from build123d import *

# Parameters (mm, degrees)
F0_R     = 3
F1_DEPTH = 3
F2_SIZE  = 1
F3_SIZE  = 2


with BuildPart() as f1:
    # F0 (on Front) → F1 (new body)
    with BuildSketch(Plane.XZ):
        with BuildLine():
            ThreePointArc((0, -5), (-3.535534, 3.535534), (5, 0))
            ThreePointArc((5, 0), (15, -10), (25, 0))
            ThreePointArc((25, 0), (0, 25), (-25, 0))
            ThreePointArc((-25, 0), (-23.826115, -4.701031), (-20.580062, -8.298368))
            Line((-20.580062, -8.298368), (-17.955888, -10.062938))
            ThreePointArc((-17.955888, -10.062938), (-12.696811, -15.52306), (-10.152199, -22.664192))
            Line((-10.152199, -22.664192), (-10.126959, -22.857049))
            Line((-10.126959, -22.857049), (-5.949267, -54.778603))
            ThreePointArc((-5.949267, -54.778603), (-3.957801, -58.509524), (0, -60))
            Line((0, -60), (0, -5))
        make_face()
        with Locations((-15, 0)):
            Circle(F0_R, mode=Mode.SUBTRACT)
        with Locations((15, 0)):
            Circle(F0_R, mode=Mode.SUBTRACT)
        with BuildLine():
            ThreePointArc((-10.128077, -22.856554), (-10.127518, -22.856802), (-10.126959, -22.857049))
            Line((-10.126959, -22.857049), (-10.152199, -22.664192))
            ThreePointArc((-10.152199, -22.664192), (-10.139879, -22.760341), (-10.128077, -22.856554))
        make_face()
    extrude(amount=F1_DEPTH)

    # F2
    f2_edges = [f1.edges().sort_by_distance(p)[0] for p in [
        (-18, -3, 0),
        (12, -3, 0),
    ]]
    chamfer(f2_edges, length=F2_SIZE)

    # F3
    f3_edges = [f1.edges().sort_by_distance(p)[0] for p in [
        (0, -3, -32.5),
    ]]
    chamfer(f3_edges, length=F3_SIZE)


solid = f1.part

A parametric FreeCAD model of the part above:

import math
import FreeCAD as App
import Part
import Sketcher
Q = App.Units.Quantity


def edges_at(feature, points):
    """Names of the edges that pass closest to the given points."""
    edges = feature.Shape.Edges
    near = lambda p: min(range(len(edges)), key=lambda i: edges[i].distToShape(Part.Vertex(*p))[0])
    return sorted({f"Edge{near(p) + 1}" for p in points})

doc = App.newDocument("Part")
params = doc.addObject("Spreadsheet::Sheet", "Params")
for row, (alias, value) in enumerate([
    ("sketch1_diameter", "6 mm"),
    ("sketch1_diameter2", "6 mm"),
    ("sketch1_radius", "5 mm"),
    ("sketch1_radius2", "10 mm"),
    ("sketch1_radius3", "10.000001 mm"),
    ("pad1_length", "3 mm"),
    ("chamfer_size", "1 mm"),
    ("chamfer2_size", "2 mm"),
], start=1):
    params.set(f"A{row}", alias)
    params.set(f"B{row}", "=" + value)
    params.setAlias(f"B{row}", alias)

body = doc.addObject("PartDesign::Body", "Body")

# Sketch on XZ plane
sketch1 = body.newObject("Sketcher::SketchObject", "Sketch")
sketch1.AttachmentSupport = (doc.getObject("XZ_Plane"), [""])
sketch1.MapMode = "FlatFace"
sketch1.addGeometry([
    Part.ArcOfCircle(Part.Circle(App.Vector(0, 0, 0), App.Vector(0, 0, 1), 5), math.radians(-0.000001), math.radians(270.000001)),  # 0
    Part.ArcOfCircle(Part.Circle(App.Vector(15, 0, 0), App.Vector(0, 0, 1), 10), math.radians(180), math.radians(360)),  # 1
    Part.ArcOfCircle(Part.Circle(App.Vector(0, 0, 0), App.Vector(0, 0, 1), 25), math.radians(0), math.radians(180)),  # 2
    Part.ArcOfCircle(Part.Circle(App.Vector(-14.999999, 0, 0), App.Vector(0, 0, 1), 10.000001), math.radians(-179.999997), math.radians(-123.918029)),  # 3
    Part.LineSegment(App.Vector(-20.580062, -8.298368, 0), App.Vector(-17.955888, -10.062938, 0)),  # 4
    Part.ArcOfCircle(Part.Circle(App.Vector(-28.000005, -25.000003, 0), App.Vector(0, 0, 1), 18.000005), math.radians(7.456141), math.radians(56.081966)),  # 5
    Part.ArcOfCircle(Part.Circle(App.Vector(-28.002739, -25.000325, 0), App.Vector(0, 0, 1), 18.002758), math.radians(6.839018), math.radians(7.456029)),  # 6
    Part.ArcOfCircle(Part.Circle(App.Vector(-9.962044, -22.483064, 0), App.Vector(0, 0, 1), 0.408731), math.radians(-113.967301), math.radians(-113.795906)),  # 7
    Part.LineSegment(App.Vector(-10.126959, -22.857049, 0), App.Vector(-5.949267, -54.778603, 0)),  # 8
    Part.ArcOfCircle(Part.Circle(App.Vector(0.000001, -53.999999, 0), App.Vector(0, 0, 1), 6.000001), math.radians(-172.543852), math.radians(-90.00001)),  # 9
    Part.LineSegment(App.Vector(0, -60, 0), App.Vector(0, -5, 0)),  # 10
    Part.Circle(App.Vector(-15, 0, 0), App.Vector(0, 0, 1), 3),  # 11
    Part.Circle(App.Vector(15, 0, 0), App.Vector(0, 0, 1), 3),  # 12
], False)
sketch1.addConstraint([
    Sketcher.Constraint("Coincident", 0, 1, 1, 1),
    Sketcher.Constraint("Coincident", 1, 2, 2, 1),
    Sketcher.Constraint("Coincident", 2, 2, 3, 1),
    Sketcher.Constraint("Coincident", 3, 2, 4, 1),
    Sketcher.Constraint("Coincident", 4, 2, 5, 2),
    Sketcher.Constraint("Coincident", 5, 1, 6, 2),
    Sketcher.Constraint("Coincident", 6, 1, 7, 1),
    Sketcher.Constraint("Coincident", 7, 2, 8, 1),
    Sketcher.Constraint("Coincident", 8, 2, 9, 1),
    Sketcher.Constraint("Coincident", 9, 2, 10, 1),
    Sketcher.Constraint("Coincident", 10, 2, 0, 2),
    Sketcher.Constraint("Vertical", 10),
    Sketcher.Constraint("Coincident", 0, 3, -1, 1),
    Sketcher.Constraint("Coincident", 2, 3, -1, 1),
    Sketcher.Constraint("Coincident", 11, 3, 3, 3),
    Sketcher.Constraint("Coincident", 12, 3, 1, 3),
    Sketcher.Constraint("PointOnObject", 1, 3, -1),
    Sketcher.Constraint("PointOnObject", 3, 3, -1),
    Sketcher.Constraint("PointOnObject", 9, 3, -2),
    Sketcher.Constraint("PointOnObject", 0, 1, -1),
    Sketcher.Constraint("PointOnObject", 1, 2, -1),
    Sketcher.Constraint("PointOnObject", 2, 2, -1),
    Sketcher.Constraint("PointOnObject", 9, 2, -2),
    Sketcher.Constraint("Diameter", 11, Q("6 mm")),
    Sketcher.Constraint("Diameter", 12, Q("6 mm")),
    Sketcher.Constraint("Radius", 0, Q("5 mm")),
    Sketcher.Constraint("Radius", 1, Q("10 mm")),
    Sketcher.Constraint("Radius", 3, Q("10.000001 mm")),
    Sketcher.Constraint("Radius", 9, Q("6.000001 mm")),
    Sketcher.Constraint("DistanceY", 10, 1, 10, 2, Q("55 mm")),
    Sketcher.Constraint("Radius", 6, Q("18.002758 mm")),
    Sketcher.Constraint("Radius", 7, Q("0.408731 mm")),
    Sketcher.Constraint("Radius", 5, Q("18.000005 mm")),
    Sketcher.Constraint("DistanceX", 5, 1, -1, 1, Q("10.152199 mm")),
    Sketcher.Constraint("Distance", 8, Q("32.193768 mm")),
    Sketcher.Constraint("DistanceX", 6, 3, -1, 1, Q("28.002739 mm")),
    Sketcher.Constraint("DistanceY", 3, 2, -1, 1, Q("8.298368 mm")),
    Sketcher.Constraint("DistanceX", 4, 2, -1, 1, Q("17.955888 mm")),
    Sketcher.Constraint("DistanceY", 4, 2, -1, 1, Q("10.062938 mm")),
    Sketcher.Constraint("DistanceX", 7, 2, -1, 1, Q("10.126959 mm")),
    Sketcher.Constraint("DistanceY", 7, 2, -1, 1, Q("22.857049 mm")),
    Sketcher.Constraint("DistanceX", 5, 3, 7, 3, Q("18.037961 mm")),
    Sketcher.Constraint("DistanceY", 5, 3, 7, 3, Q("2.516938 mm")),
])
sketch1.setExpression("Constraints[23]", "Params.sketch1_diameter")
sketch1.setExpression("Constraints[24]", "Params.sketch1_diameter2")
sketch1.setExpression("Constraints[25]", "Params.sketch1_radius")
sketch1.setExpression("Constraints[26]", "Params.sketch1_radius2")
sketch1.setExpression("Constraints[27]", "Params.sketch1_radius3")
pad1 = body.newObject("PartDesign::Pad", "Pad")
pad1.Profile = sketch1
pad1.setExpression("Length", "Params.pad1_length")
doc.recompute()

chamfer = body.newObject("PartDesign::Chamfer", "Chamfer")
chamfer.Base = (pad1, edges_at(pad1, [(-18, -3, 0), (12, -3, 0)]))
chamfer.setExpression("Size", "Params.chamfer_size")
doc.recompute()

chamfer2 = body.newObject("PartDesign::Chamfer", "Chamfer001")
chamfer2.Base = (chamfer, edges_at(chamfer, [(0, -3, -32.5)]))
chamfer2.setExpression("Size", "Params.chamfer2_size")

doc.recompute()
